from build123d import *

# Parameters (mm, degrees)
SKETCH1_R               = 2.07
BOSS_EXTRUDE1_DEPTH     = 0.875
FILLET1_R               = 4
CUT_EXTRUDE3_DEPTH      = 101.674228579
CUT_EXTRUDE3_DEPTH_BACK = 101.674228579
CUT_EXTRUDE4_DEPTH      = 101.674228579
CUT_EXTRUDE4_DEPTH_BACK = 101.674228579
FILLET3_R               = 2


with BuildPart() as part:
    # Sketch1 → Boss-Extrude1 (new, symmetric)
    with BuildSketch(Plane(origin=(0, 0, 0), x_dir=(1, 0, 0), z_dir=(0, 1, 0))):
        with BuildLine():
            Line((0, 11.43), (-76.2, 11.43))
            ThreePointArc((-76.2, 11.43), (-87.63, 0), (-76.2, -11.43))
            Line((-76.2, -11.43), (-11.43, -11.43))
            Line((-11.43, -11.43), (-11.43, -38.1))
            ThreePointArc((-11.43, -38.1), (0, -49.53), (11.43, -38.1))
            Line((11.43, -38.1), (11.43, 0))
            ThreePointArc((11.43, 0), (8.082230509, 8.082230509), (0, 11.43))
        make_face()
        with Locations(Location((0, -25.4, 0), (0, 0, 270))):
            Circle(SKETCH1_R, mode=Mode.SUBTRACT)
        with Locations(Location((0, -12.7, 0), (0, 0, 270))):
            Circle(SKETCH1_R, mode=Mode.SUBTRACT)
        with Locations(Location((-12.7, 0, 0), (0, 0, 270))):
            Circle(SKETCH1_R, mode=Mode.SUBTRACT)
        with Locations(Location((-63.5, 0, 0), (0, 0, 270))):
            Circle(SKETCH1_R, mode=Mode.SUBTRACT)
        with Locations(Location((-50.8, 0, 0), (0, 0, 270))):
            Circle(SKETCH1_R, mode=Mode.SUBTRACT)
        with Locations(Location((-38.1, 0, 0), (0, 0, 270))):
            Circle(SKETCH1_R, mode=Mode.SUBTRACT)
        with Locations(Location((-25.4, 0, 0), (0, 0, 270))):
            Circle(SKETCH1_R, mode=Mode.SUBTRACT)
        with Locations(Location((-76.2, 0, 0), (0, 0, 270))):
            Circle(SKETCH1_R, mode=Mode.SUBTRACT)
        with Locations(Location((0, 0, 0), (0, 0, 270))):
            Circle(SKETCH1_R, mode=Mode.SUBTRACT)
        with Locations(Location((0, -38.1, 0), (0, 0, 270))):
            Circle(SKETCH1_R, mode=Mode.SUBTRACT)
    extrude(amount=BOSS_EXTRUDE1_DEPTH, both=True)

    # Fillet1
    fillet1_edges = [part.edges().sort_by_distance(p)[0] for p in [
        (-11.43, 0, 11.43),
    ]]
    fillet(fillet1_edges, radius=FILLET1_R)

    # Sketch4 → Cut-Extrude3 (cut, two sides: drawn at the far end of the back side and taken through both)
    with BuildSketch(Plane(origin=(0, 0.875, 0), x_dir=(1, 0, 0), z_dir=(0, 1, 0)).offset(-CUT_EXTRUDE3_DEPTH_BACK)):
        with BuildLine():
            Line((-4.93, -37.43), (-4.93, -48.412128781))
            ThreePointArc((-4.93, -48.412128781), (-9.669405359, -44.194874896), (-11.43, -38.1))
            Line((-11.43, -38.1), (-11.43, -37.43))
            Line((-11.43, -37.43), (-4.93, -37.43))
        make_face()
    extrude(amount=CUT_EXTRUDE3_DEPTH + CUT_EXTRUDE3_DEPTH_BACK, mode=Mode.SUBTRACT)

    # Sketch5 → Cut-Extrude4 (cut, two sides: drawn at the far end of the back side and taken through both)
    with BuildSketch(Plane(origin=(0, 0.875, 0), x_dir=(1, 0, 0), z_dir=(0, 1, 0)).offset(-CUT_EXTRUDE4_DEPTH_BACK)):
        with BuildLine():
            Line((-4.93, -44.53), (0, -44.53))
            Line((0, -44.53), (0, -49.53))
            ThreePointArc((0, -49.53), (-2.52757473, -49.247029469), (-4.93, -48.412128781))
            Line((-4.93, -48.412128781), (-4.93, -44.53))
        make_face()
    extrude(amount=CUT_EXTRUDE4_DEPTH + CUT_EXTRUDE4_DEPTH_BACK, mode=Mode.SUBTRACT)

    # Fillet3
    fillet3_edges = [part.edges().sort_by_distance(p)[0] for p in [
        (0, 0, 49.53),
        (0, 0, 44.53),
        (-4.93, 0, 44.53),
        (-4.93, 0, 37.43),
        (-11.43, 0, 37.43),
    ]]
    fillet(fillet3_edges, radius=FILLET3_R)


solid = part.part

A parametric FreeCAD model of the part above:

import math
import FreeCAD as App
import Part
import Sketcher
from FreeCAD import Vector
Q = App.Units.Quantity


def edges_at(feature, points):
    """Names of the edges that pass closest to the given points."""
    edges = feature.Shape.Edges
    near = lambda p: min(range(len(edges)), key=lambda i: edges[i].distToShape(Part.Vertex(*p))[0])
    return sorted({f"Edge{near(p) + 1}" for p in points})

doc = App.newDocument("Part")
params = doc.addObject("Spreadsheet::Sheet", "Params")
for row, (alias, value) in enumerate([
    ("sketch1_width", "3 in"),
    ("sketch1_radius", "0.45 in"),
    ("sketch1_height", "1.5 in"),
    ("pad1_length", "1.75 mm"),
    ("fillet_radius", "4 mm"),
    ("sketch2_radius", "0.45 in"),
    ("sketch3_radius", "0.45 in"),
    ("fillet2_radius", "2 mm"),
], start=1):
    params.set(f"A{row}", alias)
    params.set(f"B{row}", "=" + value)
    params.setAlias(f"B{row}", alias)

body = doc.addObject("PartDesign::Body", "Body")

sketch1 = body.newObject("Sketcher::SketchObject", "Sketch")
sketch1.AttachmentSupport = (doc.getObject("XZ_Plane"), [""])
sketch1.MapMode = "FlatFace"
sketch1.addGeometry(Part.LineSegment(Vector(0, -11.43, 0), Vector(-76.2, -11.43, 0)), False)
sketch1.addGeometry(Part.ArcOfCircle(Part.Circle(Vector(-76.2, 0, 0), Vector(0, 0, 1), 11.43), math.radians(90), math.radians(270)), False)
sketch1.addGeometry(Part.LineSegment(Vector(-76.2, 11.43, 0), Vector(-11.43, 11.43, 0)), False)
sketch1.addGeometry(Part.LineSegment(Vector(-11.43, 11.43, 0), Vector(-11.43, 38.1, 0)), False)
sketch1.addGeometry(Part.ArcOfCircle(Part.Circle(Vector(0, 38.1, 0), Vector(0, 0, 1), 11.43), math.radians(0), math.radians(180)), False)
sketch1.addGeometry(Part.LineSegment(Vector(11.43, 38.1, 0), Vector(11.43, 0, 0)), False)
sketch1.addGeometry(Part.ArcOfCircle(Part.Circle(Vector(0, 0, 0), Vector(0, 0, 1), 11.43), math.radians(-90), math.radians(0)), False)
sketch1.addGeometry(Part.Circle(Vector(0, 38.1, 0), Vector(0, 0, 1), 2.07), False)
sketch1.addGeometry(Part.Circle(Vector(0, 25.4, 0), Vector(0, 0, 1), 2.07), False)
sketch1.addGeometry(Part.Circle(Vector(-76.2, 0, 0), Vector(0, 0, 1), 2.07), False)
sketch1.addGeometry(Part.Circle(Vector(-63.5, 0, 0), Vector(0, 0, 1), 2.07), False)
sketch1.addGeometry(Part.Circle(Vector(-50.8, 0, 0), Vector(0, 0, 1), 2.07), False)
sketch1.addGeometry(Part.Circle(Vector(0, 12.7, 0), Vector(0, 0, 1), 2.07), False)
sketch1.addGeometry(Part.Circle(Vector(-38.1, 0, 0), Vector(0, 0, 1), 2.07), False)
sketch1.addGeometry(Part.Circle(Vector(-25.4, 0, 0), Vector(0, 0, 1), 2.07), False)
sketch1.addGeometry(Part.Circle(Vector(-12.7, 0, 0), Vector(0, 0, 1), 2.07), False)
sketch1.addGeometry(Part.Circle(Vector(0, 0, 0), Vector(0, 0, 1), 2.07), False)
sketch1.addConstraint(Sketcher.Constraint("Tangent", 0, 2, 1, 2))
sketch1.addConstraint(Sketcher.Constraint("Tangent", 1, 1, 2, 1))
sketch1.addConstraint(Sketcher.Constraint("Coincident", 2, 2, 3, 1))
sketch1.addConstraint(Sketcher.Constraint("Tangent", 3, 2, 4, 2))
sketch1.addConstraint(Sketcher.Constraint("Tangent", 4, 1, 5, 1))
sketch1.addConstraint(Sketcher.Constraint("Tangent", 5, 2, 6, 2))
sketch1.addConstraint(Sketcher.Constraint("Tangent", 6, 1, 0, 1))
sketch1.addConstraint(Sketcher.Constraint("Horizontal", 0))
sketch1.addConstraint(Sketcher.Constraint("Horizontal", 2))
sketch1.addConstraint(Sketcher.Constraint("Vertical", 3))
sketch1.addConstraint(Sketcher.Constraint("Vertical", 5))
sketch1.addConstraint(Sketcher.Constraint("Coincident", 6, 3, -1, 1))
sketch1.addConstraint(Sketcher.Constraint("Coincident", 16, 3, -1, 1))
sketch1.addConstraint(Sketcher.Constraint("Coincident", 7, 3, 4, 3))
sketch1.addConstraint(Sketcher.Constraint("Coincident", 9, 3, 1, 3))
sketch1.addConstraint(Sketcher.Constraint("Equal", 1, 4))
sketch1.addConstraint(Sketcher.Constraint("Equal", 4, 6))
sketch1.addConstraint(Sketcher.Constraint("Equal", 7, 8))
sketch1.addConstraint(Sketcher.Constraint("Equal", 8, 9))
sketch1.addConstraint(Sketcher.Constraint("Equal", 9, 10))
sketch1.addConstraint(Sketcher.Constraint("Equal", 10, 11))
sketch1.addConstraint(Sketcher.Constraint("Equal", 11, 12))
sketch1.addConstraint(Sketcher.Constraint("Equal", 12, 13))
sketch1.addConstraint(Sketcher.Constraint("Equal", 13, 14))
sketch1.addConstraint(Sketcher.Constraint("Equal", 14, 15))
sketch1.addConstraint(Sketcher.Constraint("Equal", 15, 16))
sketch1.addConstraint(Sketcher.Constraint("PointOnObject", 8, 3, -2))
sketch1.addConstraint(Sketcher.Constraint("PointOnObject", 10, 3, -1))
sketch1.addConstraint(Sketcher.Constraint("PointOnObject", 11, 3, -1))
sketch1.addConstraint(Sketcher.Constraint("PointOnObject", 12, 3, -2))
sketch1.addConstraint(Sketcher.Constraint("PointOnObject", 13, 3, -1))
sketch1.addConstraint(Sketcher.Constraint("PointOnObject", 14, 3, -1))
sketch1.addConstraint(Sketcher.Constraint("PointOnObject", 15, 3, -1))
sketch1.addConstraint(Sketcher.Constraint("DistanceX", 0, 2, 0, 1, Q("3 in")))
sketch1.addConstraint(Sketcher.Constraint("Radius", 1, Q("0.45 in")))
sketch1.addConstraint(Sketcher.Constraint("DistanceY", 5, 2, 5, 1, Q("1.5 in")))
sketch1.addConstraint(Sketcher.Constraint("DistanceY", -1, 1, 8, 3, Q("1 in")))
sketch1.addConstraint(Sketcher.Constraint("DistanceX", 11, 3, -1, 1, Q("2 in")))
sketch1.addConstraint(Sketcher.Constraint("DistanceX", 14, 3, -1, 1, Q("1 in")))
sketch1.addConstraint(Sketcher.Constraint("DistanceY", 12, 3, 4, 3, Q("1 in")))
sketch1.addConstraint(Sketcher.Constraint("DistanceX", 10, 3, 13, 3, Q("1 in")))
sketch1.addConstraint(Sketcher.Constraint("DistanceX", 13, 3, 15, 3, Q("1 in")))
sketch1.addConstraint(Sketcher.Constraint("DistanceX", 10, 3, -1, 1, Q("2.5 in")))
sketch1.addConstraint(Sketcher.Constraint("Diameter", 7, Q("4.14 mm")))
sketch1.setExpression("Constraints[33]", "Params.sketch1_width")
sketch1.setExpression("Constraints[34]", "Params.sketch1_radius")
sketch1.setExpression("Constraints[35]", "Params.sketch1_height")
pad1 = body.newObject("PartDesign::Pad", "Pad")
pad1.Profile = sketch1
pad1.setExpression("Length", "Params.pad1_length")
pad1.Midplane = True
doc.recompute()

fillet = body.newObject("PartDesign::Fillet", "Fillet")
fillet.Base = (pad1, edges_at(pad1, [(-11.43, 0, 11.43)]))
fillet.setExpression("Radius", "Params.fillet_radius")

sketch2 = body.newObject("Sketcher::SketchObject", "Sketch001")
sketch2.AttachmentSupport = (doc.getObject("XZ_Plane"), [""])
sketch2.MapMode = "FlatFace"
sketch2.AttachmentOffset = App.Placement(Vector(0, 0, -0.875), App.Rotation())
sketch2.addGeometry(Part.LineSegment(Vector(-4.93, 48.412129, 0), Vector(-4.93, 37.43, 0)), False)
sketch2.addGeometry(Part.LineSegment(Vector(-4.93, 37.43, 0), Vector(-11.43, 37.43, 0)), False)
sketch2.addGeometry(Part.LineSegment(Vector(-11.43, 37.43, 0), Vector(-11.43, 38.1, 0)), False)
sketch2.addGeometry(Part.ArcOfCircle(Part.Circle(Vector(0, 38.1, 0), Vector(0, 0, 1), 11.43), math.radians(115.551429), math.radians(180)), False)
sketch2.addConstraint(Sketcher.Constraint("Coincident", 0, 2, 1, 1))
sketch2.addConstraint(Sketcher.Constraint("Coincident", 1, 2, 2, 1))
sketch2.addConstraint(Sketcher.Constraint("Tangent", 2, 2, 3, 2))
sketch2.addConstraint(Sketcher.Constraint("Coincident", 3, 1, 0, 1))
sketch2.addConstraint(Sketcher.Constraint("Vertical", 0))
sketch2.addConstraint(Sketcher.Constraint("Horizontal", 1))
sketch2.addConstraint(Sketcher.Constraint("Vertical", 2))
sketch2.addConstraint(Sketcher.Constraint("PointOnObject", 3, 3, -2))
sketch2.addConstraint(Sketcher.Constraint("Radius", 3, Q("0.45 in")))
sketch2.addConstraint(Sketcher.Constraint("DistanceY", -1, 1, 3, 3, Q("1.5 in")))
sketch2.addConstraint(Sketcher.Constraint("DistanceX", 1, 2, 1, 1, Q("6.5 mm")))
sketch2.addConstraint(Sketcher.Constraint("DistanceY", 2, 1, 2, 2, Q("0.67 mm")))
sketch2.setExpression("Constraints[8]", "Params.sketch2_radius")
pocket1 = body.newObject("PartDesign::Pocket", "Pocket")
pocket1.Profile = sketch2
pocket1.Type = "ThroughAll"
pocket1.Midplane = True

sketch3 = body.newObject("Sketcher::SketchObject", "Sketch002")
sketch3.AttachmentSupport = (doc.getObject("XZ_Plane"), [""])
sketch3.MapMode = "FlatFace"
sketch3.AttachmentOffset = App.Placement(Vector(0, 0, -0.875), App.Rotation())
sketch3.addGeometry(Part.LineSegment(Vector(0, 44.53, 0), Vector(-4.93, 44.53, 0)), False)
sketch3.addGeometry(Part.LineSegment(Vector(-4.93, 44.53, 0), Vector(-4.93, 48.412129, 0)), False)
sketch3.addGeometry(Part.ArcOfCircle(Part.Circle(Vector(0, 38.1, 0), Vector(0, 0, 1), 11.43), math.radians(90), math.radians(115.551429)), False)
sketch3.addGeometry(Part.LineSegment(Vector(0, 49.53, 0), Vector(0, 44.53, 0)), False)
sketch3.addConstraint(Sketcher.Constraint("Coincident", 0, 2, 1, 1))
sketch3.addConstraint(Sketcher.Constraint("Coincident", 1, 2, 2, 2))
sketch3.addConstraint(Sketcher.Constraint("Coincident", 2, 1, 3, 1))
sketch3.addConstraint(Sketcher.Constraint("Coincident", 3, 2, 0, 1))
sketch3.addConstraint(Sketcher.Constraint("Horizontal", 0))
sketch3.addConstraint(Sketcher.Constraint("Vertical", 1))
sketch3.addConstraint(Sketcher.Constraint("Vertical", 3))
sketch3.addConstraint(Sketcher.Constraint("PointOnObject", 2, 3, -2))
sketch3.addConstraint(Sketcher.Constraint("PointOnObject", 2, 1, -2))
sketch3.addConstraint(Sketcher.Constraint("Radius", 2, Q("0.45 in")))
sketch3.addConstraint(Sketcher.Constraint("DistanceY", -1, 1, 2, 3, Q("1.5 in")))
sketch3.addConstraint(Sketcher.Constraint("DistanceX", 0, 2, 0, 1, Q("4.93 mm")))
sketch3.addConstraint(Sketcher.Constraint("DistanceY", 3, 2, 3, 1, Q("5 mm")))
sketch3.setExpression("Constraints[9]", "Params.sketch3_radius")
pocket2 = body.newObject("PartDesign::Pocket", "Pocket001")
pocket2.Profile = sketch3
pocket2.Type = "ThroughAll"
pocket2.Midplane = True
doc.recompute()

fillet2 = body.newObject("PartDesign::Fillet", "Fillet001")
fillet2.Base = (pocket2, edges_at(pocket2, [
    (0, 0, 49.53),
    (0, 0, 44.53),
    (-4.93, 0, 44.53),
    (-4.93, 0, 37.43),
    (-11.43, 0, 37.43),
]))
fillet2.setExpression("Radius", "Params.fillet2_radius")

doc.recompute()
